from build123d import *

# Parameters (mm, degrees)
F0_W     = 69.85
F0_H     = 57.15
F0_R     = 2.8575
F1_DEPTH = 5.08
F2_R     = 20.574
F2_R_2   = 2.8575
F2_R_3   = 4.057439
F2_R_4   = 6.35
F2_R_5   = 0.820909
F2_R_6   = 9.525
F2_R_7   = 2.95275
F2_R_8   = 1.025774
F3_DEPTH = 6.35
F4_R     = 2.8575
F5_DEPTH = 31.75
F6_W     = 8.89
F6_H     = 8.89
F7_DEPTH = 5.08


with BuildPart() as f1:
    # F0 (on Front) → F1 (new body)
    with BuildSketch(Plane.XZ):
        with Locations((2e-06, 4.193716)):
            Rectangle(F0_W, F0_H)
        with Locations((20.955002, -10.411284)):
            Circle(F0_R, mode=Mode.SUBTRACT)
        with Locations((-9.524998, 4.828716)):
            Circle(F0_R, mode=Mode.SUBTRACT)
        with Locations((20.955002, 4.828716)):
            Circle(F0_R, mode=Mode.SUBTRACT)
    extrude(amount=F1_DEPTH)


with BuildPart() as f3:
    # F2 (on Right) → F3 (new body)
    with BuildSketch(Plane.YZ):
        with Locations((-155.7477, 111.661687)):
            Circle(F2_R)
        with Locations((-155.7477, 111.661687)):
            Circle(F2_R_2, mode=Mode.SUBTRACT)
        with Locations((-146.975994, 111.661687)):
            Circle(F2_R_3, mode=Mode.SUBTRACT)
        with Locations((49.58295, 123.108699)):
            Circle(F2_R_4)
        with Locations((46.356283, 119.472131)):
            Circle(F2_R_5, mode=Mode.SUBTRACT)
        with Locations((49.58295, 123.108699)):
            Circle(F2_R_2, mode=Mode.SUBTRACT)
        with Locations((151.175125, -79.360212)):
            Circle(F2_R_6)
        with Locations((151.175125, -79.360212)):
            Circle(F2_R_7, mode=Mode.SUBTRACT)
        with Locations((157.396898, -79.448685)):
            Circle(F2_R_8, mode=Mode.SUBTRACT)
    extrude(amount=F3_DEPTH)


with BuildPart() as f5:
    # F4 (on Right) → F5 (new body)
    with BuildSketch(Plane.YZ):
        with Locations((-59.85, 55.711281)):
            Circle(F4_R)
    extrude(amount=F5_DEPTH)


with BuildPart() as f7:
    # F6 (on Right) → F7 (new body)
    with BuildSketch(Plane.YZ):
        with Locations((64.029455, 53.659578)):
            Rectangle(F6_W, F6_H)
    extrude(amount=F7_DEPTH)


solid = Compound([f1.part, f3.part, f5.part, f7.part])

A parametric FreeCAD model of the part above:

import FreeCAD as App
import Part
import Sketcher
from FreeCAD import Vector
Q = App.Units.Quantity

doc = App.newDocument("Part")
body = doc.addObject("PartDesign::Body", "Body")

sketch1 = body.newObject("Sketcher::SketchObject", "Sketch")
sketch1.AttachmentSupport = (doc.getObject("XZ_Plane"), [""])
sketch1.MapMode = "FlatFace"
sketch1.addGeometry([
    Part.LineSegment(Vector(-34.9, 32.8, 0), Vector(-34.9, -24.4, 0)),
    Part.LineSegment(Vector(-34.9, -24.4, 0), Vector(34.9, -24.4, 0)),
    Part.LineSegment(Vector(34.9, -24.4, 0), Vector(34.9, 32.8, 0)),
    Part.LineSegment(Vector(34.9, 32.8, 0), Vector(-34.9, 32.8, 0)),
    Part.Circle(Vector(21, -10.4, 0), Vector(0, 0, 1), 2.9),
    Part.Circle(Vector(-9.5, 4.8, 0), Vector(0, 0, 1), 2.9),
    Part.Circle(Vector(21, 4.8, 0), Vector(0, 0, 1), 2.9),
], False)
sketch1.addConstraint([
    Sketcher.Constraint("Coincident", 0, 2, 1, 1),
    Sketcher.Constraint("Coincident", 1, 2, 2, 1),
    Sketcher.Constraint("Coincident", 2, 2, 3, 1),
    Sketcher.Constraint("Coincident", 3, 2, 0, 1),
    Sketcher.Constraint("Vertical", 0),
    Sketcher.Constraint("Horizontal", 1),
    Sketcher.Constraint("Vertical", 2),
    Sketcher.Constraint("Horizontal", 3),
    Sketcher.Constraint("Equal", 4, 5),
    Sketcher.Constraint("Equal", 5, 6),
    Sketcher.Constraint("Horizontal", 5, 3, 6, 3),
    Sketcher.Constraint("Vertical", 4, 3, 6, 3),
    Sketcher.Constraint("Diameter", 4, Q("0.225 in")),
    Sketcher.Constraint("DistanceX", 0, 2, 5, 3, Q("1 in")),
    Sketcher.Constraint("DistanceX", 1, 1, 1, 2, Q("2.75 in")),
    Sketcher.Constraint("DistanceY", 0, 2, 0, 1, Q("2.25 in")),
    Sketcher.Constraint("DistanceX", 5, 3, 4, 3, Q("1.2 in")),
    Sketcher.Constraint("DistanceY", 4, 3, 5, 3, Q("0.6 in")),
    Sketcher.Constraint("DistanceY", 6, 3, 2, 2, Q("1.1 in")),
    Sketcher.Constraint("DistanceX", -1, 1, 4, 3, Q("0.8250001 in")),
    Sketcher.Constraint("DistanceY", 4, 3, -1, 1, 10.411284),
])
pad1 = body.newObject("PartDesign::Pad", "Pad")
pad1.Profile = sketch1
pad1.Length = Q("0.2 in")
body2 = doc.addObject("PartDesign::Body", "Body001")
body2.AllowCompound = True

sketch2 = body2.newObject("Sketcher::SketchObject", "Sketch001")
sketch2.AttachmentSupport = (doc.getObject("YZ_Plane001"), [""])
sketch2.MapMode = "FlatFace"
sketch2.addGeometry([
    Part.Circle(Vector(-155.7, 111.7, 0), Vector(0, 0, 1), 20.6),
    Part.Circle(Vector(-155.7, 111.7, 0), Vector(0, 0, 1), 2.9),
    Part.Circle(Vector(-147, 111.7, 0), Vector(0, 0, 1), 4.1),
    Part.Circle(Vector(49.6, 123.1, 0), Vector(0, 0, 1), 6.3),
    Part.Circle(Vector(46.4, 119.5, 0), Vector(0, 0, 1), 0.8),
    Part.Circle(Vector(49.6, 123.1, 0), Vector(0, 0, 1), 2.9),
    Part.Circle(Vector(151.2, -79.4, 0), Vector(0, 0, 1), 9.5),
    Part.Circle(Vector(157.4, -79.4, 0), Vector(0, 0, 1), 1),
    Part.Circle(Vector(151.2, -79.4, 0), Vector(0, 0, 1), 3),
], False)
sketch2.addConstraint([
    Sketcher.Constraint("Coincident", 1, 3, 0, 3),
    Sketcher.Constraint("Coincident", 5, 3, 3, 3),
    Sketcher.Constraint("Coincident", 8, 3, 6, 3),
    Sketcher.Constraint("Equal", 1, 5),
    Sketcher.Constraint("Horizontal", 1, 3, 2, 3),
    Sketcher.Constraint("Diameter", 3, Q("0.5 in")),
    Sketcher.Constraint("Diameter", 0, Q("1.62 in")),
    Sketcher.Constraint("Diameter", 6, Q("0.75 in")),
    Sketcher.Constraint("Diameter", 1, Q("0.225 in")),
    Sketcher.Constraint("Diameter", 8, Q("0.2325 in")),
    Sketcher.Constraint("Diameter", 2, 8.114878),
    Sketcher.Constraint("Diameter", 4, 1.641818),
    Sketcher.Constraint("Diameter", 7, 2.051548),
    Sketcher.Constraint("DistanceY", 7, 3, 3, 3, Q("7.9747002 in")),
    Sketcher.Constraint("DistanceX", 0, 3, -1, 1, 155.7477),
    Sketcher.Constraint("DistanceY", -1, 1, 3, 3, 123.108699),
    Sketcher.Constraint("DistanceX", -1, 1, 7, 3, 157.396898),
    Sketcher.Constraint("DistanceY", 6, 3, 2, 3, 191.021899),
    Sketcher.Constraint("DistanceX", -1, 1, 3, 3, 49.58295),
    Sketcher.Constraint("DistanceY", -1, 1, 4, 3, 119.472131),
    Sketcher.Constraint("DistanceY", 6, 3, 3, 3, 202.468911),
    Sketcher.Constraint("DistanceX", 2, 3, 6, 3, 298.151119),
    Sketcher.Constraint("DistanceX", 2, 3, 7, 3, 304.372892),
    Sketcher.Constraint("DistanceX", -1, 1, 4, 3, 46.356283),
])
pad2 = body2.newObject("PartDesign::Pad", "Pad001")
pad2.Profile = sketch2
pad2.Length = Q("0.25 in")
body3 = doc.addObject("PartDesign::Body", "Body002")

sketch3 = body3.newObject("Sketcher::SketchObject", "Sketch002")
sketch3.AttachmentSupport = (doc.getObject("YZ_Plane002"), [""])
sketch3.MapMode = "FlatFace"
sketch3.addGeometry(Part.Circle(Vector(-59.9, 55.7, 0), Vector(0, 0, 1), 2.9), False)
sketch3.addConstraint([
    Sketcher.Constraint("Diameter", 0, Q("0.225 in")),
    Sketcher.Constraint("DistanceX", 0, 3, -1, 1, 59.85),
    Sketcher.Constraint("DistanceY", -1, 1, 0, 3, 55.711281),
])
pad3 = body3.newObject("PartDesign::Pad", "Pad002")
pad3.Profile = sketch3
pad3.Length = Q("1.25 in")
body4 = doc.addObject("PartDesign::Body", "Body003")

sketch4 = body4.newObject("Sketcher::SketchObject", "Sketch003")
sketch4.AttachmentSupport = (doc.getObject("YZ_Plane003"), [""])
sketch4.MapMode = "FlatFace"
sketch4.addGeometry([
    Part.LineSegment(Vector(60, 58, 0), Vector(60, 49, 0)),
    Part.LineSegment(Vector(60, 49, 0), Vector(68, 49, 0)),
    Part.LineSegment(Vector(68, 49, 0), Vector(68, 58, 0)),
    Part.LineSegment(Vector(68, 58, 0), Vector(60, 58, 0)),
], False)
sketch4.addConstraint([
    Sketcher.Constraint("Coincident", 0, 2, 1, 1),
    Sketcher.Constraint("Coincident", 1, 2, 2, 1),
    Sketcher.Constraint("Coincident", 2, 2, 3, 1),
    Sketcher.Constraint("Coincident", 3, 2, 0, 1),
    Sketcher.Constraint("Vertical", 0),
    Sketcher.Constraint("Horizontal", 1),
    Sketcher.Constraint("Vertical", 2),
    Sketcher.Constraint("Horizontal", 3),
    Sketcher.Constraint("Equal", 3, 0),
    Sketcher.Constraint("DistanceX", 1, 1, 1, 2, Q("0.35 in")),
    Sketcher.Constraint("DistanceY", -1, 1, 0, 2, 49.214578),
    Sketcher.Constraint("DistanceX", -1, 1, 0, 2, 59.584455),
])
pad4 = body4.newObject("PartDesign::Pad", "Pad003")
pad4.Profile = sketch4
pad4.Length = Q("0.2 in")

doc.recompute()
